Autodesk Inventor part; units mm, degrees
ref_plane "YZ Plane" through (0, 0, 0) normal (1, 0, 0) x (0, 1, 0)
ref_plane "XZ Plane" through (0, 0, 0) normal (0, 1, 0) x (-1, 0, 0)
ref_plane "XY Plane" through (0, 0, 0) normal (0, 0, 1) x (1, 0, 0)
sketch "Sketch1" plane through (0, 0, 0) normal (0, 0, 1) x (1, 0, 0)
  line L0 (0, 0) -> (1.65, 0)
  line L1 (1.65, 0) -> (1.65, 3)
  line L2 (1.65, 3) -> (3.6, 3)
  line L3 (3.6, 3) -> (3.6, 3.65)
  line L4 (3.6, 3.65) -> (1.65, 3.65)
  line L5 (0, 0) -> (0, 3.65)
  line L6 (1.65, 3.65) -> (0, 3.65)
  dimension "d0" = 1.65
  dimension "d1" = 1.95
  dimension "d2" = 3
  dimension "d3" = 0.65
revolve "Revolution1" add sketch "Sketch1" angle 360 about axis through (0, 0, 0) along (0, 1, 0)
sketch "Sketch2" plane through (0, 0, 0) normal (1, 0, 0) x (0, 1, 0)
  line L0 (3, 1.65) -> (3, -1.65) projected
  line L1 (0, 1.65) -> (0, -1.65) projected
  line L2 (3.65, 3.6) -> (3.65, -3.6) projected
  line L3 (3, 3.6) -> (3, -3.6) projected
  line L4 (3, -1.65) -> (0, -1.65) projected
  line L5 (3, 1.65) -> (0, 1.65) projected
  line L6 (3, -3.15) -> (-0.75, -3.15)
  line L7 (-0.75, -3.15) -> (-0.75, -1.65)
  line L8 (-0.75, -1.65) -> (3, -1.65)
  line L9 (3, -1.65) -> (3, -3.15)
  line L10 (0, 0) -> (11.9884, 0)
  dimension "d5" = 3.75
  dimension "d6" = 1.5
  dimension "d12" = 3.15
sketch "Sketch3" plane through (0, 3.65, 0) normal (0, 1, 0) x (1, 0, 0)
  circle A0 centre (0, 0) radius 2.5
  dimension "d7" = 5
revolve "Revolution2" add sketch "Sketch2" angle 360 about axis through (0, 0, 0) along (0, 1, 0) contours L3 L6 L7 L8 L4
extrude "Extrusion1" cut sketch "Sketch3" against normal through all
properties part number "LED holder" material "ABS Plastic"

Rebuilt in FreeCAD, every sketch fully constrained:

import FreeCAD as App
import Part
import Sketcher
from FreeCAD import Vector
Q = App.Units.Quantity

doc = App.newDocument("Part")
params = doc.addObject("Spreadsheet::Sheet", "Params")
for row, (alias, value) in enumerate([
    ("sketch1_height", "3 mm"),
    ("sketch1_width", "1.65 mm"),
    ("sketch1_width2", "1.95 mm"),
    ("sketch1_height2", "0.65 mm"),
    ("revolution_angle", "360 deg"),
    ("sketch2_height", "1.5 mm"),
    ("sketch2_width", "3.75 mm"),
    ("revolution2_angle", "360 deg"),
    ("sketch3_diameter", "5 mm"),
], start=1):
    params.set(f"A{row}", alias)
    params.set(f"B{row}", "=" + value)
    params.setAlias(f"B{row}", alias)

body = doc.addObject("PartDesign::Body", "Body")

# Sketch on XY plane
sketch1 = doc.addObject("Sketcher::SketchObject", "Sketch")
body.addObject(sketch1)
sketch1.AttachmentSupport = (doc.XY_Plane, [""])
sketch1.MapMode = "FlatFace"
sketch1.addGeometry([
    Part.LineSegment(Vector(0, 3.6, 0), Vector(0, 0, 0)),  # 0
    Part.LineSegment(Vector(0, 0, 0), Vector(1.6, 0, 0)),  # 1
    Part.LineSegment(Vector(1.6, 0, 0), Vector(1.6, 3, 0)),  # 2
    Part.LineSegment(Vector(1.6, 3, 0), Vector(3.6, 3, 0)),  # 3
    Part.LineSegment(Vector(3.6, 3, 0), Vector(3.6, 3.6, 0)),  # 4
    Part.LineSegment(Vector(3.6, 3.6, 0), Vector(0, 3.6, 0)),  # 5
], False)
sketch1.addConstraint([
    Sketcher.Constraint("Coincident", 0, 2, 1, 1),
    Sketcher.Constraint("Coincident", 1, 2, 2, 1),
    Sketcher.Constraint("Coincident", 2, 2, 3, 1),
    Sketcher.Constraint("Coincident", 3, 2, 4, 1),
    Sketcher.Constraint("Coincident", 4, 2, 5, 1),
    Sketcher.Constraint("Coincident", 5, 2, 0, 1),
    Sketcher.Constraint("Vertical", 0),
    Sketcher.Constraint("Horizontal", 1),
    Sketcher.Constraint("Vertical", 2),
    Sketcher.Constraint("Horizontal", 3),
    Sketcher.Constraint("Vertical", 4),
    Sketcher.Constraint("Horizontal", 5),
    Sketcher.Constraint("Coincident", 0, 2, -1, 1),
    Sketcher.Constraint("DistanceY", 2, 1, 2, 2, Q("3 mm")),
    Sketcher.Constraint("DistanceX", 1, 1, 1, 2, Q("1.65 mm")),
    Sketcher.Constraint("DistanceX", 3, 1, 3, 2, Q("1.95 mm")),
    Sketcher.Constraint("DistanceY", 4, 1, 4, 2, Q("0.65 mm")),
])
sketch1.setExpression("Constraints[13]", "Params.sketch1_height")
sketch1.setExpression("Constraints[14]", "Params.sketch1_width")
sketch1.setExpression("Constraints[15]", "Params.sketch1_width2")
sketch1.setExpression("Constraints[16]", "Params.sketch1_height2")
revolution = doc.addObject("PartDesign::Revolution", "Revolution")
body.addObject(revolution)
revolution.Profile = sketch1
revolution.ReferenceAxis = (sketch1, ["V_Axis"])
revolution.setExpression("Angle", "Params.revolution_angle")

# Sketch on YZ plane
sketch2 = doc.addObject("Sketcher::SketchObject", "Sketch001")
body.addObject(sketch2)
sketch2.AttachmentSupport = (doc.YZ_Plane, [""])
sketch2.MapMode = "FlatFace"
sketch2.addGeometry([
    Part.LineSegment(Vector(3, -3.1, 0), Vector(3, -1.6, 0)),
    Part.LineSegment(Vector(3, -1.6, 0), Vector(-0.8, -1.6, 0)),
    Part.LineSegment(Vector(-0.8, -1.6, 0), Vector(-0.8, -3.1, 0)),
    Part.LineSegment(Vector(-0.8, -3.1, 0), Vector(3, -3.1, 0)),
], False)
sketch2.addConstraint([
    Sketcher.Constraint("Coincident", 0, 2, 1, 1),
    Sketcher.Constraint("Coincident", 1, 2, 2, 1),
    Sketcher.Constraint("Coincident", 2, 2, 3, 1),
    Sketcher.Constraint("Coincident", 3, 2, 0, 1),
    Sketcher.Constraint("Vertical", 0),
    Sketcher.Constraint("Horizontal", 1),
    Sketcher.Constraint("Vertical", 2),
    Sketcher.Constraint("Horizontal", 3),
    Sketcher.Constraint("DistanceY", 0, 1, 0, 2, Q("1.5 mm")),
    Sketcher.Constraint("DistanceX", 1, 2, 1, 1, Q("3.75 mm")),
    Sketcher.Constraint("DistanceY", 2, 2, -1, 1, Q("3.15 mm")),
    Sketcher.Constraint("DistanceX", -1, 1, 0, 2, Q("3 mm")),
])
sketch2.setExpression("Constraints[8]", "Params.sketch2_height")
sketch2.setExpression("Constraints[9]", "Params.sketch2_width")
revolution2 = doc.addObject("PartDesign::Revolution", "Revolution001")
body.addObject(revolution2)
revolution2.Profile = sketch2
revolution2.ReferenceAxis = (sketch2, ["H_Axis"])
revolution2.setExpression("Angle", "Params.revolution2_angle")

# Sketch on XZ plane
sketch3 = doc.addObject("Sketcher::SketchObject", "Sketch002")
body.addObject(sketch3)
sketch3.AttachmentSupport = (doc.XZ_Plane, [""])
sketch3.MapMode = "FlatFace"
sketch3.AttachmentOffset = App.Placement(Vector(0, 0, -3.65), App.Rotation())
sketch3.addGeometry(Part.Circle(Vector(0, 0, 0), Vector(0, 0, 1), 2.5), False)
sketch3.addConstraint([
    Sketcher.Constraint("Coincident", 0, 3, -1, 1),
    Sketcher.Constraint("Diameter", 0, Q("5 mm")),
])
sketch3.setExpression("Constraints[1]", "Params.sketch3_diameter")
pocket1 = doc.addObject("PartDesign::Pocket", "Pocket")
body.addObject(pocket1)
pocket1.Profile = sketch3
pocket1.Type = "ThroughAll"
pocket1.Reversed = True

doc.recompute()
